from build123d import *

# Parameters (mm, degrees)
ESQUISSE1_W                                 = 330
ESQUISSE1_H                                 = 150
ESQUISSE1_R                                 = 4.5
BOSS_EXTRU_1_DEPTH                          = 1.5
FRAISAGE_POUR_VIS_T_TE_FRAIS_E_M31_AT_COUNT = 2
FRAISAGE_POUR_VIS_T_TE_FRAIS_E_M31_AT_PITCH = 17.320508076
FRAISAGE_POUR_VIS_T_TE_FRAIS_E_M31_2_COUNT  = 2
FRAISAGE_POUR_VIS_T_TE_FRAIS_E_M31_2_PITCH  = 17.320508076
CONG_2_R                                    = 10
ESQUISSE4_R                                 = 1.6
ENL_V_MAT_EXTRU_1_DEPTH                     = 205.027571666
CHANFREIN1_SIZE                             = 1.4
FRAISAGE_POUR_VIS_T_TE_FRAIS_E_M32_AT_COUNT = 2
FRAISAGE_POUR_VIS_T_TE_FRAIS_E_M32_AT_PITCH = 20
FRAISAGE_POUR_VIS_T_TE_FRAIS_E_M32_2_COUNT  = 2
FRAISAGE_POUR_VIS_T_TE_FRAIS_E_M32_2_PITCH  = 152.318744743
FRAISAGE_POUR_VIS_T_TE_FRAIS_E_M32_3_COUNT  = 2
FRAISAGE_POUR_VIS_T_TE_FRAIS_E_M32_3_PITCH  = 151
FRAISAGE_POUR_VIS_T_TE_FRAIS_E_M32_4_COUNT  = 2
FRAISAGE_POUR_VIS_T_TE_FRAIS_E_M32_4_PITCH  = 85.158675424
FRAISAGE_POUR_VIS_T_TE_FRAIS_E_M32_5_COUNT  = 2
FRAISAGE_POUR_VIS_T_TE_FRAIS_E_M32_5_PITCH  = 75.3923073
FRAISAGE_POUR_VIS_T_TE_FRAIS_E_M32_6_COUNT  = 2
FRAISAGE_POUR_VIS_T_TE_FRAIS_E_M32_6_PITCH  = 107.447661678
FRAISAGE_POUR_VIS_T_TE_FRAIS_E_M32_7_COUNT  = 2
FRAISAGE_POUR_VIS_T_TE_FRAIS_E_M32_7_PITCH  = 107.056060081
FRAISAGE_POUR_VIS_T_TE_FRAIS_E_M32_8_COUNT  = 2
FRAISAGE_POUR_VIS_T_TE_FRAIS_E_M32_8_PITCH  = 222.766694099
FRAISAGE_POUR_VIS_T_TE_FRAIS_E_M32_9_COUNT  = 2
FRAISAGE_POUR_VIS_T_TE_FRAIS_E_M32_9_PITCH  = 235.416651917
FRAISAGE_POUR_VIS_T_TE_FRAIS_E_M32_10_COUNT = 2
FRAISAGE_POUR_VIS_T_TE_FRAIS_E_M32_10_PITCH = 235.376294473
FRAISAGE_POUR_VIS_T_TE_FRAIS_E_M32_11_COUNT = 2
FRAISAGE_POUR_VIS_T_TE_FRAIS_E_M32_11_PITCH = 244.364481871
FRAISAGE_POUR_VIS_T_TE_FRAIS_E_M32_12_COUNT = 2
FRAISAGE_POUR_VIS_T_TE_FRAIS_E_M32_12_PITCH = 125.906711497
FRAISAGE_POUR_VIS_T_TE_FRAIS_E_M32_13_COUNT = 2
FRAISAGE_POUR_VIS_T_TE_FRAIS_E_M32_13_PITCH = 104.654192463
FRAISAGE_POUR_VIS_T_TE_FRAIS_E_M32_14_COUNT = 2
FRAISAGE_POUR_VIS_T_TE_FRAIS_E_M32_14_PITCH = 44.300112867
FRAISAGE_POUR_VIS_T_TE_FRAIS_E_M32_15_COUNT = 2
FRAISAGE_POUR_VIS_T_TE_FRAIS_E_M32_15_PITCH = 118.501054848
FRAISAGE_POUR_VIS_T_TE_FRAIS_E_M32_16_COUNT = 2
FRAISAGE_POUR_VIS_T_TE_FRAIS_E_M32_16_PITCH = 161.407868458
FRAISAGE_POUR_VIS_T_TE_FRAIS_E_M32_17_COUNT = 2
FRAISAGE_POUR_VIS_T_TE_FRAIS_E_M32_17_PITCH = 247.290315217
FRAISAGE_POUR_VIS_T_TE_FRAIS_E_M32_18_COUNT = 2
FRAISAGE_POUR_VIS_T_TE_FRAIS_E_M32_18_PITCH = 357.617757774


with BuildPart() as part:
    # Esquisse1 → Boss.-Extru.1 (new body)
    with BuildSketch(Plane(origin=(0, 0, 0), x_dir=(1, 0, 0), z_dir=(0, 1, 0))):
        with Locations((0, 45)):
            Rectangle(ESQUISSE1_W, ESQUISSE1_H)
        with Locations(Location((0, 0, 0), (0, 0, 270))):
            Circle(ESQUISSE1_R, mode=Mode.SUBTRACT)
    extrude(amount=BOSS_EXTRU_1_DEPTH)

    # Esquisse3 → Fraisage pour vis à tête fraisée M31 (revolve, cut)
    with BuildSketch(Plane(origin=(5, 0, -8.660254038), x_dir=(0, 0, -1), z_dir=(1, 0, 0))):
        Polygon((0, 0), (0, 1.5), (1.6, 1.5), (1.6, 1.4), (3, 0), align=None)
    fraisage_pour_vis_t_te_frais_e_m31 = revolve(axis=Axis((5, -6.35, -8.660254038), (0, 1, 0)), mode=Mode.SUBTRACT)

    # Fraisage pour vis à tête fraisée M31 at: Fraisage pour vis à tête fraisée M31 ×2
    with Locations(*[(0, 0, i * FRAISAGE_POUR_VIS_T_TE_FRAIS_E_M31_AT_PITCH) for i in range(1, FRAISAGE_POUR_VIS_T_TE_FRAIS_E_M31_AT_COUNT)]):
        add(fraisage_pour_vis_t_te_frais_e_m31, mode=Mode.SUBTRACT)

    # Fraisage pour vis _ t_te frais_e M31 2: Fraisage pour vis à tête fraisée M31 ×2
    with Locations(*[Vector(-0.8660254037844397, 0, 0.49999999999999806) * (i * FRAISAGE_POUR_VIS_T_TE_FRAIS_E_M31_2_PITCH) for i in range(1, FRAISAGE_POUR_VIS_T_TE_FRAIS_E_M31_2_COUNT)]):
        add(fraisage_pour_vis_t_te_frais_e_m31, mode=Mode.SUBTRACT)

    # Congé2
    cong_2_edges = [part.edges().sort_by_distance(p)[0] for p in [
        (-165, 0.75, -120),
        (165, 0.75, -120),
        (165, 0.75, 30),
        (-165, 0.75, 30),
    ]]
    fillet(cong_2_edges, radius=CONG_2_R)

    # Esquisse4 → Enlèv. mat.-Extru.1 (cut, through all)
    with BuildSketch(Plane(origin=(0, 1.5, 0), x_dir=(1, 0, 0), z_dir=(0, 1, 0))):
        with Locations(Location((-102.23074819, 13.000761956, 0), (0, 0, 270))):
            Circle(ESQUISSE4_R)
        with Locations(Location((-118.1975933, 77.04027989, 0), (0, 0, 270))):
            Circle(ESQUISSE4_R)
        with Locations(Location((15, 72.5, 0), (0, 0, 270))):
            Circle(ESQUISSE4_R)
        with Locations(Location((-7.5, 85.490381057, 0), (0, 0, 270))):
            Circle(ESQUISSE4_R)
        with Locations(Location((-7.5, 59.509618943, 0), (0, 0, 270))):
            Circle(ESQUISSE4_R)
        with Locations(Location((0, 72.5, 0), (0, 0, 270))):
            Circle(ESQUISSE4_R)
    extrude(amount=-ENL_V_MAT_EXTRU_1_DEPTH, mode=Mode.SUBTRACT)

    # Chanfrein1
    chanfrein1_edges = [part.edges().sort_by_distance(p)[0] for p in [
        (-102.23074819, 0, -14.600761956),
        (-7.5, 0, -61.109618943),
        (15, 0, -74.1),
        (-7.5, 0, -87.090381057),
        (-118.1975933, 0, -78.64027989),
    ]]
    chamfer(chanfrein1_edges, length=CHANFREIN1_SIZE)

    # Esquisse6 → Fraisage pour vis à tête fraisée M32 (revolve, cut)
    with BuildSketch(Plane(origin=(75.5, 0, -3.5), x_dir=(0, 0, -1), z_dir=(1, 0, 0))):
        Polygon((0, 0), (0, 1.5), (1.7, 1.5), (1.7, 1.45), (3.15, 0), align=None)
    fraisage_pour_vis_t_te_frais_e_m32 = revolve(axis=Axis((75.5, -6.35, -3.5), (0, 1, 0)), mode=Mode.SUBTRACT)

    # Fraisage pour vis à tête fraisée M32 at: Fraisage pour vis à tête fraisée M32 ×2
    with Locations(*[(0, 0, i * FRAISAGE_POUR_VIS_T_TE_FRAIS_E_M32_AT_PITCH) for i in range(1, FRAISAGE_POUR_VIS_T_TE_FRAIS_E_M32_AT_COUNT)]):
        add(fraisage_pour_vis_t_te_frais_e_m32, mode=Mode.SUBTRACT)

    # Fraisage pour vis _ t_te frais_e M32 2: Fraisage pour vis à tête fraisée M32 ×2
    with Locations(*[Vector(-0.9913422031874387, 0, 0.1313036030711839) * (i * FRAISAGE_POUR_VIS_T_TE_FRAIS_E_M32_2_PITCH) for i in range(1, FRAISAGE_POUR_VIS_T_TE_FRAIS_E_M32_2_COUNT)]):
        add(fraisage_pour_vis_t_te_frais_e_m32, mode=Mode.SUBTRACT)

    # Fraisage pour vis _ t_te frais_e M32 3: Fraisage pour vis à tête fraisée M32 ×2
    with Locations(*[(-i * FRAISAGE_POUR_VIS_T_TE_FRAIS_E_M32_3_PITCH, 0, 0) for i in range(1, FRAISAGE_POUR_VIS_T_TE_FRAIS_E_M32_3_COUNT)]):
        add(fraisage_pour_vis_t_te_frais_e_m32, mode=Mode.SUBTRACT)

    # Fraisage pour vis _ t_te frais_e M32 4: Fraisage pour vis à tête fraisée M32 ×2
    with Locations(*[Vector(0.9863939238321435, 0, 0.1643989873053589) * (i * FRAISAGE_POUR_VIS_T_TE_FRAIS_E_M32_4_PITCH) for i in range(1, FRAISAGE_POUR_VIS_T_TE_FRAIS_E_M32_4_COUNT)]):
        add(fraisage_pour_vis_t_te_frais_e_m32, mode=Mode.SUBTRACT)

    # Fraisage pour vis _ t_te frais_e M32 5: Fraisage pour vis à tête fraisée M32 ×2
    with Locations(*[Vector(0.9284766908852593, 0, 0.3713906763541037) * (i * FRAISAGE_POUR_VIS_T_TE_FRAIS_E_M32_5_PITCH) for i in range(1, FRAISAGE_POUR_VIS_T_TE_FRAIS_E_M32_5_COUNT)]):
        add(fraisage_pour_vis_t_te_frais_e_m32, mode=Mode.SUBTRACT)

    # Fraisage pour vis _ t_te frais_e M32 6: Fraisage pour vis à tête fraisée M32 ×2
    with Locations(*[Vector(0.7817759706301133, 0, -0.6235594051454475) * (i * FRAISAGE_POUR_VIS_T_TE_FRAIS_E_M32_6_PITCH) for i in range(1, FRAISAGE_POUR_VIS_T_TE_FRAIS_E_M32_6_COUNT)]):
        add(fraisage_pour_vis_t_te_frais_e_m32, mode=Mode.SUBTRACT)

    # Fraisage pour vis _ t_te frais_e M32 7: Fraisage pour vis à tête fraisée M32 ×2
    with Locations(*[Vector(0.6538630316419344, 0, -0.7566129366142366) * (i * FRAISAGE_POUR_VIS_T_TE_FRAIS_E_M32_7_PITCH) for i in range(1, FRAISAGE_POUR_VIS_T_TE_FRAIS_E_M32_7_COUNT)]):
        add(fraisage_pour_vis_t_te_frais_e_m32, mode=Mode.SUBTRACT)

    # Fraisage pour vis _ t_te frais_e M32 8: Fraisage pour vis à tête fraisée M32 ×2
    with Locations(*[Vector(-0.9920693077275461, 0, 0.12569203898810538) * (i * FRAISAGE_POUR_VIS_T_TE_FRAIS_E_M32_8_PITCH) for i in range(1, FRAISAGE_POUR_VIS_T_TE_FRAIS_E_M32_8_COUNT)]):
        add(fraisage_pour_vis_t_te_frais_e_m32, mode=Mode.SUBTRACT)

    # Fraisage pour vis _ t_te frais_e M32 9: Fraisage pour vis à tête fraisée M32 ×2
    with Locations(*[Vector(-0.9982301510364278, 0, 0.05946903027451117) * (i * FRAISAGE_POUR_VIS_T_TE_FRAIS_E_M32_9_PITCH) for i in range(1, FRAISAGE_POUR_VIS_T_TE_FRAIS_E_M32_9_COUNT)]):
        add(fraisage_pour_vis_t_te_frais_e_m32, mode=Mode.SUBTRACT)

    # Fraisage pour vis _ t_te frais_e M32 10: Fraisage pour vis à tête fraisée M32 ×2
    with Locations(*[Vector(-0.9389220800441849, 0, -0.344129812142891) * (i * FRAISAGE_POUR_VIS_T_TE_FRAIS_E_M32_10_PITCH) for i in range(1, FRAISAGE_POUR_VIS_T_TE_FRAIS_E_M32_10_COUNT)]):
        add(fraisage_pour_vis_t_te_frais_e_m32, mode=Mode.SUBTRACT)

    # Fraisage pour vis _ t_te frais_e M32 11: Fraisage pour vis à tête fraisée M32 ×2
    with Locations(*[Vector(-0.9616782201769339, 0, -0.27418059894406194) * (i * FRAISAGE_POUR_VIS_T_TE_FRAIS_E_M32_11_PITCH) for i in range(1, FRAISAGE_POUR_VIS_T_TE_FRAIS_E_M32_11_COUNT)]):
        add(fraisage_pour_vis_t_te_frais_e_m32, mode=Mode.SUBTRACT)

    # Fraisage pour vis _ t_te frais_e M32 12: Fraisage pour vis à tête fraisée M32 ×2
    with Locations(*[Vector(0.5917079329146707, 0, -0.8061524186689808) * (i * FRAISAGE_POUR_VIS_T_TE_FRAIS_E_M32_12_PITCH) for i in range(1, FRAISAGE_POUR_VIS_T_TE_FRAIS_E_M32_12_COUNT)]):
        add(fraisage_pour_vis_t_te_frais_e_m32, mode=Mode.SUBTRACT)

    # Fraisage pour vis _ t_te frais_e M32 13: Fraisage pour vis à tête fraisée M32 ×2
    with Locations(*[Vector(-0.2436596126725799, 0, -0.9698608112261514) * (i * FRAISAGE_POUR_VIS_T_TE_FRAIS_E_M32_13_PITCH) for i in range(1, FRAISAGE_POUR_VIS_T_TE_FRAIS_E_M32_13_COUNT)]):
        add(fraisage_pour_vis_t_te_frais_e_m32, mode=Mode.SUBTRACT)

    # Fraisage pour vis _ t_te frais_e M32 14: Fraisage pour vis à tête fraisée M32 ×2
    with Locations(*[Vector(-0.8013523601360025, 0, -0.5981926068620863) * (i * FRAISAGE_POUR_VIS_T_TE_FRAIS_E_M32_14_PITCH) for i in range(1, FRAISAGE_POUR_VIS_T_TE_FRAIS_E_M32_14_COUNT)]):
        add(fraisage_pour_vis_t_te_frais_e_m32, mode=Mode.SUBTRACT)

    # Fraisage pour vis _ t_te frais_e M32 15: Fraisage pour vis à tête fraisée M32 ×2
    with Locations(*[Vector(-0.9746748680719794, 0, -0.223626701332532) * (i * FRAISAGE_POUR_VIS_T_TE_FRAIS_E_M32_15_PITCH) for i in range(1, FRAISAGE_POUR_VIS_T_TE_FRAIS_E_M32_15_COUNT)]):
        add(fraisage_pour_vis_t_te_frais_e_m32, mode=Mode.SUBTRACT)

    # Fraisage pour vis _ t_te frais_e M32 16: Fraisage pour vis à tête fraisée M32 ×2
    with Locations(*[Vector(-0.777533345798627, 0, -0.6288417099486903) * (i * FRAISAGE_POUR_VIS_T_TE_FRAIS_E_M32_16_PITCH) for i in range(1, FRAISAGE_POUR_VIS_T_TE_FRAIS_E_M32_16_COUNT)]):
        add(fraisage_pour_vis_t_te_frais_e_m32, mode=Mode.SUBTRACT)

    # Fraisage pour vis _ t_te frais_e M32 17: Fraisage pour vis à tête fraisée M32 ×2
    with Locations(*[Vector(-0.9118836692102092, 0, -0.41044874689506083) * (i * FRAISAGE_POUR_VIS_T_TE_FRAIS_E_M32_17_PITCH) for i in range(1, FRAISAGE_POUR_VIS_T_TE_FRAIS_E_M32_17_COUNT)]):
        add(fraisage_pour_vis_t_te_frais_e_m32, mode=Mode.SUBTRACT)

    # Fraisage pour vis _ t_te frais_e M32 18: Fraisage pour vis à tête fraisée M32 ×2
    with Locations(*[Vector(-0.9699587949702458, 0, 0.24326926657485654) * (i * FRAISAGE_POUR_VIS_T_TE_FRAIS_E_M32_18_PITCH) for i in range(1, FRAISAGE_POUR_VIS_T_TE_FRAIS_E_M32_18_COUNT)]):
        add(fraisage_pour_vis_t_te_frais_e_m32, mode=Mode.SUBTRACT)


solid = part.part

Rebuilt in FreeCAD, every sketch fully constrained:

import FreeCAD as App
import Part
import Sketcher
from FreeCAD import Vector
Q = App.Units.Quantity


def edges_at(feature, points):
    """Names of the edges that pass closest to the given points."""
    edges = feature.Shape.Edges
    near = lambda p: min(range(len(edges)), key=lambda i: edges[i].distToShape(Part.Vertex(*p))[0])
    return sorted({f"Edge{near(p) + 1}" for p in points})


def add_polygon(sketch, points):
    """Adds a closed chain of lines whose ends are joined by coincident constraints."""
    first, n = sketch.GeometryCount, len(points)
    for a, b in zip(points, points[1:] + points[:1]):
        sketch.addGeometry(Part.LineSegment(App.Vector(*a, 0), App.Vector(*b, 0)), False)
    for i in range(n):
        sketch.addConstraint(Sketcher.Constraint("Coincident", first + i, 2, first + (i + 1) % n, 1))

doc = App.newDocument("Part")
body = doc.addObject("PartDesign::Body", "Body")

# Sketch on XZ plane
sketch1 = body.newObject("Sketcher::SketchObject", "Sketch")
sketch1.AttachmentSupport = (doc.getObject("XZ_Plane"), [""])
sketch1.MapMode = "FlatFace"
add_polygon(sketch1, [(-165, -120), (-165, 30), (165, 30), (165, -120)])  # lines 0-3
sketch1.addGeometry(Part.Circle(Vector(0, 0, 0), Vector(0, 0, 1), 4.5), False)  # 4
sketch1.addConstraint([
    Sketcher.Constraint("Vertical", 0),
    Sketcher.Constraint("Horizontal", 1),
    Sketcher.Constraint("Vertical", 2),
    Sketcher.Constraint("Horizontal", 3),
    Sketcher.Constraint("Coincident", 4, 3, -1, 1),
    Sketcher.Constraint("Diameter", 4, Q("9 mm")),
    Sketcher.Constraint("DistanceX", 1, 1, 1, 2, Q("330 mm")),
    Sketcher.Constraint("DistanceY", 0, 1, 0, 2, Q("150 mm")),
    Sketcher.Constraint("DistanceX", 0, 2, -1, 1, Q("165 mm")),
    Sketcher.Constraint("DistanceY", -1, 1, 0, 2, Q("30 mm")),
])
pad1 = body.newObject("PartDesign::Pad", "Pad")
pad1.Profile = sketch1
pad1.Length = 1.5
pad1.Reversed = True

# Sketch on YZ plane
sketch2 = body.newObject("Sketcher::SketchObject", "Sketch001")
sketch2.AttachmentSupport = (doc.getObject("YZ_Plane"), [""])
sketch2.MapMode = "FlatFace"
sketch2.AttachmentOffset = App.Placement(Vector(0, 0, 5), App.Rotation())
add_polygon(sketch2, [(1.5, -8.66), (0, -8.66), (0, -11.66), (1.4, -10.26), (1.5, -10.26)])  # lines 0-4
sketch2.addGeometry(Part.LineSegment(Vector(0, -8.66, 0), Vector(1.5, -8.66, 0)), True)  # axis
sketch2.addConstraint([
    Sketcher.Constraint("Horizontal", 0),
    Sketcher.Constraint("Vertical", 1),
    Sketcher.Constraint("Horizontal", 3),
    Sketcher.Constraint("Vertical", 4),
    Sketcher.Constraint("Horizontal", 5),
    Sketcher.Constraint("Coincident", 5, 1, 0, 2),
    Sketcher.Constraint("PointOnObject", 0, 2, -2),
    Sketcher.Constraint("Vertical", 3, 2, 5, 2),
    Sketcher.Constraint("DistanceY", 1, 2, 1, 1, Q("3 mm")),
    Sketcher.Constraint("Angle", 2, Q("45 deg")),
    Sketcher.Constraint("DistanceX", 0, 2, 0, 1, Q("1.5 mm")),
    Sketcher.Constraint("DistanceX", 3, 1, 3, 2, Q("0.1 mm")),
    Sketcher.Constraint("DistanceY", 0, 2, -1, 1, Q("8.660254 mm")),
])
groove = body.newObject("PartDesign::Groove", "Groove")
groove.Profile = sketch2
groove.ReferenceAxis = (sketch2, ["Axis0"])
groove.Angle = 360
doc.recompute()

linearpattern = body.newObject("PartDesign::LinearPattern", "LinearPattern")
linearpattern.Originals = [groove]
linearpattern.Direction = (doc.getObject("Z_Axis"), [""])
linearpattern.Mode = "offset"
linearpattern.Offset = 17.320508
linearpattern.Occurrences = 2
body.Tip = linearpattern
doc.recompute()

datumline = body.newObject("PartDesign::Line", "DatumLine")
datumline.Placement = App.Placement(Vector(0, 0, 0), App.Rotation(Vector(0, 0, 1), Vector(-0.866025404, 0, 0.5)))
linearpattern2 = body.newObject("PartDesign::LinearPattern", "LinearPattern001")
linearpattern2.Originals = [groove]
linearpattern2.Direction = (datumline, [""])
linearpattern2.Mode = "offset"
linearpattern2.Offset = 17.320508
linearpattern2.Occurrences = 2
body.Tip = linearpattern2
doc.recompute()

fillet = body.newObject("PartDesign::Fillet", "Fillet")
fillet.Base = (linearpattern2, edges_at(linearpattern2, [
    (-165, 0.75, -120),
    (165, 0.75, -120),
    (165, 0.75, 30),
    (-165, 0.75, 30),
]))
fillet.Radius = 10

# Sketch on XZ plane
sketch3 = body.newObject("Sketcher::SketchObject", "Sketch002")
sketch3.AttachmentSupport = (doc.getObject("XZ_Plane"), [""])
sketch3.MapMode = "FlatFace"
sketch3.AttachmentOffset = App.Placement(Vector(0, 0, -1.5), App.Rotation())
sketch3.addGeometry([
    Part.Circle(Vector(-102.2, -13, 0), Vector(0, 0, 1), 1.6),  # 0
    Part.Circle(Vector(-118.2, -77, 0), Vector(0, 0, 1), 1.6),  # 1
    Part.Circle(Vector(15, -72.5, 0), Vector(0, 0, 1), 1.6),  # 2
    Part.Circle(Vector(-7.5, -85.5, 0), Vector(0, 0, 1), 1.6),  # 3
    Part.Circle(Vector(-7.5, -59.5, 0), Vector(0, 0, 1), 1.6),  # 4
    Part.Circle(Vector(0, -72.5, 0), Vector(0, 0, 1), 1.6),  # 5
], False)
sketch3.addConstraint([
    Sketcher.Constraint("Equal", 0, 1),
    Sketcher.Constraint("Equal", 1, 2),
    Sketcher.Constraint("Equal", 2, 3),
    Sketcher.Constraint("Equal", 3, 4),
    Sketcher.Constraint("Equal", 4, 5),
    Sketcher.Constraint("PointOnObject", 5, 3, -2),
    Sketcher.Constraint("Horizontal", 2, 3, 5, 3),
    Sketcher.Constraint("Vertical", 3, 3, 4, 3),
    Sketcher.Constraint("Diameter", 0, Q("3.2 mm")),
    Sketcher.Constraint("DistanceX", -1, 1, 2, 3, Q("15 mm")),
    Sketcher.Constraint("DistanceY", 2, 3, -1, 1, Q("72.5 mm")),
    Sketcher.Constraint("DistanceX", 3, 3, -1, 1, Q("7.5 mm")),
    Sketcher.Constraint("DistanceY", 3, 3, 1, 3, Q("8.450101 mm")),
    Sketcher.Constraint("DistanceX", 0, 3, -1, 1, Q("102.230748 mm")),
    Sketcher.Constraint("DistanceY", 0, 3, -1, 1, Q("13.000762 mm")),
    Sketcher.Constraint("DistanceY", 1, 3, -1, 1, Q("77.04028 mm")),
    Sketcher.Constraint("DistanceY", 4, 3, -1, 1, Q("59.509619 mm")),
    Sketcher.Constraint("DistanceX", 1, 3, -1, 1, Q("118.197593 mm")),
])
pocket1 = body.newObject("PartDesign::Pocket", "Pocket")
pocket1.Profile = sketch3
pocket1.Type = "ThroughAll"
pocket1.Reversed = True
doc.recompute()

chamfer = body.newObject("PartDesign::Chamfer", "Chamfer")
chamfer.Base = (pocket1, edges_at(pocket1, [
    (-102.231, 0, -14.601),
    (-7.5, 0, -61.11),
    (15, 0, -74.1),
    (-7.5, 0, -87.09),
    (-118.198, 0, -78.64),
]))
chamfer.Size = 1.4

# Sketch on YZ plane
sketch4 = body.newObject("Sketcher::SketchObject", "Sketch003")
sketch4.AttachmentSupport = (doc.getObject("YZ_Plane"), [""])
sketch4.MapMode = "FlatFace"
sketch4.AttachmentOffset = App.Placement(Vector(0, 0, 75.5), App.Rotation())
add_polygon(sketch4, [(1.5, -3.5), (0, -3.5), (0, -6.65), (1.45, -5.2), (1.5, -5.2)])  # lines 0-4
sketch4.addGeometry(Part.LineSegment(Vector(0, -3.5, 0), Vector(1.5, -3.5, 0)), True)  # axis
sketch4.addConstraint([
    Sketcher.Constraint("Horizontal", 0),
    Sketcher.Constraint("Vertical", 1),
    Sketcher.Constraint("Horizontal", 3),
    Sketcher.Constraint("Vertical", 4),
    Sketcher.Constraint("Horizontal", 5),
    Sketcher.Constraint("Coincident", 5, 1, 0, 2),
    Sketcher.Constraint("PointOnObject", 0, 2, -2),
    Sketcher.Constraint("Vertical", 3, 2, 5, 2),
    Sketcher.Constraint("Angle", 2, Q("45 deg")),
    Sketcher.Constraint("DistanceX", 0, 2, 0, 1, Q("1.5 mm")),
    Sketcher.Constraint("DistanceY", 4, 1, 4, 2, Q("1.7 mm")),
    Sketcher.Constraint("DistanceX", 3, 1, 3, 2, Q("0.05 mm")),
    Sketcher.Constraint("DistanceY", 0, 2, -1, 1, Q("3.5 mm")),
])
groove2 = body.newObject("PartDesign::Groove", "Groove001")
groove2.Profile = sketch4
groove2.ReferenceAxis = (sketch4, ["Axis0"])
groove2.Angle = 360
doc.recompute()

linearpattern3 = body.newObject("PartDesign::LinearPattern", "LinearPattern002")
linearpattern3.Originals = [groove2]
linearpattern3.Direction = (doc.getObject("Z_Axis"), [""])
linearpattern3.Mode = "offset"
linearpattern3.Offset = 20
linearpattern3.Occurrences = 2
body.Tip = linearpattern3
doc.recompute()

datumline2 = body.newObject("PartDesign::Line", "DatumLine001")
datumline2.Placement = App.Placement(Vector(0, 0, 0), App.Rotation(Vector(0, 0, 1), Vector(-0.991342203, 0, 0.131303603)))
linearpattern4 = body.newObject("PartDesign::LinearPattern", "LinearPattern003")
linearpattern4.Originals = [groove2]
linearpattern4.Direction = (datumline2, [""])
linearpattern4.Mode = "offset"
linearpattern4.Offset = 152.318745
linearpattern4.Occurrences = 2
body.Tip = linearpattern4
doc.recompute()

linearpattern5 = body.newObject("PartDesign::LinearPattern", "LinearPattern004")
linearpattern5.Originals = [groove2]
linearpattern5.Direction = (doc.getObject("X_Axis"), [""])
linearpattern5.Mode = "offset"
linearpattern5.Offset = 151
linearpattern5.Occurrences = 2
linearpattern5.Reversed = True
body.Tip = linearpattern5
doc.recompute()

datumline3 = body.newObject("PartDesign::Line", "DatumLine002")
datumline3.Placement = App.Placement(Vector(0, 0, 0), App.Rotation(Vector(0, 0, 1), Vector(0.986393924, 0, 0.164398987)))
linearpattern6 = body.newObject("PartDesign::LinearPattern", "LinearPattern005")
linearpattern6.Originals = [groove2]
linearpattern6.Direction = (datumline3, [""])
linearpattern6.Mode = "offset"
linearpattern6.Offset = 85.158675
linearpattern6.Occurrences = 2
body.Tip = linearpattern6
doc.recompute()

datumline4 = body.newObject("PartDesign::Line", "DatumLine003")
datumline4.Placement = App.Placement(Vector(0, 0, 0), App.Rotation(Vector(0, 0, 1), Vector(0.928476691, 0, 0.371390676)))
linearpattern7 = body.newObject("PartDesign::LinearPattern", "LinearPattern006")
linearpattern7.Originals = [groove2]
linearpattern7.Direction = (datumline4, [""])
linearpattern7.Mode = "offset"
linearpattern7.Offset = 75.392307
linearpattern7.Occurrences = 2
body.Tip = linearpattern7
doc.recompute()

datumline5 = body.newObject("PartDesign::Line", "DatumLine004")
datumline5.Placement = App.Placement(Vector(0, 0, 0), App.Rotation(Vector(0, 0, 1), Vector(0.781775971, 0, -0.623559405)))
linearpattern8 = body.newObject("PartDesign::LinearPattern", "LinearPattern007")
linearpattern8.Originals = [groove2]
linearpattern8.Direction = (datumline5, [""])
linearpattern8.Mode = "offset"
linearpattern8.Offset = 107.447662
linearpattern8.Occurrences = 2
body.Tip = linearpattern8
doc.recompute()

datumline6 = body.newObject("PartDesign::Line", "DatumLine005")
datumline6.Placement = App.Placement(Vector(0, 0, 0), App.Rotation(Vector(0, 0, 1), Vector(0.653863032, 0, -0.756612937)))
linearpattern9 = body.newObject("PartDesign::LinearPattern", "LinearPattern008")
linearpattern9.Originals = [groove2]
linearpattern9.Direction = (datumline6, [""])
linearpattern9.Mode = "offset"
linearpattern9.Offset = 107.05606
linearpattern9.Occurrences = 2
body.Tip = linearpattern9
doc.recompute()

datumline7 = body.newObject("PartDesign::Line", "DatumLine006")
datumline7.Placement = App.Placement(Vector(0, 0, 0), App.Rotation(Vector(0, 0, 1), Vector(-0.992069308, 0, 0.125692039)))
linearpattern10 = body.newObject("PartDesign::LinearPattern", "LinearPattern009")
linearpattern10.Originals = [groove2]
linearpattern10.Direction = (datumline7, [""])
linearpattern10.Mode = "offset"
linearpattern10.Offset = 222.766694
linearpattern10.Occurrences = 2
body.Tip = linearpattern10
doc.recompute()

datumline8 = body.newObject("PartDesign::Line", "DatumLine007")
datumline8.Placement = App.Placement(Vector(0, 0, 0), App.Rotation(Vector(0, 0, 1), Vector(-0.998230151, 0, 0.05946903)))
linearpattern11 = body.newObject("PartDesign::LinearPattern", "LinearPattern010")
linearpattern11.Originals = [groove2]
linearpattern11.Direction = (datumline8, [""])
linearpattern11.Mode = "offset"
linearpattern11.Offset = 235.416652
linearpattern11.Occurrences = 2
body.Tip = linearpattern11
doc.recompute()

datumline9 = body.newObject("PartDesign::Line", "DatumLine008")
datumline9.Placement = App.Placement(Vector(0, 0, 0), App.Rotation(Vector(0, 0, 1), Vector(-0.93892208, 0, -0.344129812)))
linearpattern12 = body.newObject("PartDesign::LinearPattern", "LinearPattern011")
linearpattern12.Originals = [groove2]
linearpattern12.Direction = (datumline9, [""])
linearpattern12.Mode = "offset"
linearpattern12.Offset = 235.376294
linearpattern12.Occurrences = 2
body.Tip = linearpattern12
doc.recompute()

datumline10 = body.newObject("PartDesign::Line", "DatumLine009")
datumline10.Placement = App.Placement(Vector(0, 0, 0), App.Rotation(Vector(0, 0, 1), Vector(-0.96167822, 0, -0.274180599)))
linearpattern13 = body.newObject("PartDesign::LinearPattern", "LinearPattern012")
linearpattern13.Originals = [groove2]
linearpattern13.Direction = (datumline10, [""])
linearpattern13.Mode = "offset"
linearpattern13.Offset = 244.364482
linearpattern13.Occurrences = 2
body.Tip = linearpattern13
doc.recompute()

datumline11 = body.newObject("PartDesign::Line", "DatumLine010")
datumline11.Placement = App.Placement(Vector(0, 0, 0), App.Rotation(Vector(0, 0, 1), Vector(0.591707933, 0, -0.806152419)))
linearpattern14 = body.newObject("PartDesign::LinearPattern", "LinearPattern013")
linearpattern14.Originals = [groove2]
linearpattern14.Direction = (datumline11, [""])
linearpattern14.Mode = "offset"
linearpattern14.Offset = 125.906711
linearpattern14.Occurrences = 2
body.Tip = linearpattern14
doc.recompute()

datumline12 = body.newObject("PartDesign::Line", "DatumLine011")
datumline12.Placement = App.Placement(Vector(0, 0, 0), App.Rotation(Vector(0, 0, 1), Vector(-0.243659613, 0, -0.969860811)))
linearpattern15 = body.newObject("PartDesign::LinearPattern", "LinearPattern014")
linearpattern15.Originals = [groove2]
linearpattern15.Direction = (datumline12, [""])
linearpattern15.Mode = "offset"
linearpattern15.Offset = 104.654192
linearpattern15.Occurrences = 2
body.Tip = linearpattern15
doc.recompute()

datumline13 = body.newObject("PartDesign::Line", "DatumLine012")
datumline13.Placement = App.Placement(Vector(0, 0, 0), App.Rotation(Vector(0, 0, 1), Vector(-0.80135236, 0, -0.598192607)))
linearpattern16 = body.newObject("PartDesign::LinearPattern", "LinearPattern015")
linearpattern16.Originals = [groove2]
linearpattern16.Direction = (datumline13, [""])
linearpattern16.Mode = "offset"
linearpattern16.Offset = 44.300113
linearpattern16.Occurrences = 2
body.Tip = linearpattern16
doc.recompute()

datumline14 = body.newObject("PartDesign::Line", "DatumLine013")
datumline14.Placement = App.Placement(Vector(0, 0, 0), App.Rotation(Vector(0, 0, 1), Vector(-0.974674868, 0, -0.223626701)))
linearpattern17 = body.newObject("PartDesign::LinearPattern", "LinearPattern016")
linearpattern17.Originals = [groove2]
linearpattern17.Direction = (datumline14, [""])
linearpattern17.Mode = "offset"
linearpattern17.Offset = 118.501055
linearpattern17.Occurrences = 2
body.Tip = linearpattern17
doc.recompute()

datumline15 = body.newObject("PartDesign::Line", "DatumLine014")
datumline15.Placement = App.Placement(Vector(0, 0, 0), App.Rotation(Vector(0, 0, 1), Vector(-0.777533346, 0, -0.62884171)))
linearpattern18 = body.newObject("PartDesign::LinearPattern", "LinearPattern017")
linearpattern18.Originals = [groove2]
linearpattern18.Direction = (datumline15, [""])
linearpattern18.Mode = "offset"
linearpattern18.Offset = 161.407868
linearpattern18.Occurrences = 2
body.Tip = linearpattern18
doc.recompute()

datumline16 = body.newObject("PartDesign::Line", "DatumLine015")
datumline16.Placement = App.Placement(Vector(0, 0, 0), App.Rotation(Vector(0, 0, 1), Vector(-0.911883669, 0, -0.410448747)))
linearpattern19 = body.newObject("PartDesign::LinearPattern", "LinearPattern018")
linearpattern19.Originals = [groove2]
linearpattern19.Direction = (datumline16, [""])
linearpattern19.Mode = "offset"
linearpattern19.Offset = 247.290315
linearpattern19.Occurrences = 2
body.Tip = linearpattern19
doc.recompute()

datumline17 = body.newObject("PartDesign::Line", "DatumLine016")
datumline17.Placement = App.Placement(Vector(0, 0, 0), App.Rotation(Vector(0, 0, 1), Vector(-0.969958795, 0, 0.243269267)))
linearpattern20 = body.newObject("PartDesign::LinearPattern", "LinearPattern019")
linearpattern20.Originals = [groove2]
linearpattern20.Direction = (datumline17, [""])
linearpattern20.Mode = "offset"
linearpattern20.Offset = 357.617758
linearpattern20.Occurrences = 2
body.Tip = linearpattern20

doc.recompute()
